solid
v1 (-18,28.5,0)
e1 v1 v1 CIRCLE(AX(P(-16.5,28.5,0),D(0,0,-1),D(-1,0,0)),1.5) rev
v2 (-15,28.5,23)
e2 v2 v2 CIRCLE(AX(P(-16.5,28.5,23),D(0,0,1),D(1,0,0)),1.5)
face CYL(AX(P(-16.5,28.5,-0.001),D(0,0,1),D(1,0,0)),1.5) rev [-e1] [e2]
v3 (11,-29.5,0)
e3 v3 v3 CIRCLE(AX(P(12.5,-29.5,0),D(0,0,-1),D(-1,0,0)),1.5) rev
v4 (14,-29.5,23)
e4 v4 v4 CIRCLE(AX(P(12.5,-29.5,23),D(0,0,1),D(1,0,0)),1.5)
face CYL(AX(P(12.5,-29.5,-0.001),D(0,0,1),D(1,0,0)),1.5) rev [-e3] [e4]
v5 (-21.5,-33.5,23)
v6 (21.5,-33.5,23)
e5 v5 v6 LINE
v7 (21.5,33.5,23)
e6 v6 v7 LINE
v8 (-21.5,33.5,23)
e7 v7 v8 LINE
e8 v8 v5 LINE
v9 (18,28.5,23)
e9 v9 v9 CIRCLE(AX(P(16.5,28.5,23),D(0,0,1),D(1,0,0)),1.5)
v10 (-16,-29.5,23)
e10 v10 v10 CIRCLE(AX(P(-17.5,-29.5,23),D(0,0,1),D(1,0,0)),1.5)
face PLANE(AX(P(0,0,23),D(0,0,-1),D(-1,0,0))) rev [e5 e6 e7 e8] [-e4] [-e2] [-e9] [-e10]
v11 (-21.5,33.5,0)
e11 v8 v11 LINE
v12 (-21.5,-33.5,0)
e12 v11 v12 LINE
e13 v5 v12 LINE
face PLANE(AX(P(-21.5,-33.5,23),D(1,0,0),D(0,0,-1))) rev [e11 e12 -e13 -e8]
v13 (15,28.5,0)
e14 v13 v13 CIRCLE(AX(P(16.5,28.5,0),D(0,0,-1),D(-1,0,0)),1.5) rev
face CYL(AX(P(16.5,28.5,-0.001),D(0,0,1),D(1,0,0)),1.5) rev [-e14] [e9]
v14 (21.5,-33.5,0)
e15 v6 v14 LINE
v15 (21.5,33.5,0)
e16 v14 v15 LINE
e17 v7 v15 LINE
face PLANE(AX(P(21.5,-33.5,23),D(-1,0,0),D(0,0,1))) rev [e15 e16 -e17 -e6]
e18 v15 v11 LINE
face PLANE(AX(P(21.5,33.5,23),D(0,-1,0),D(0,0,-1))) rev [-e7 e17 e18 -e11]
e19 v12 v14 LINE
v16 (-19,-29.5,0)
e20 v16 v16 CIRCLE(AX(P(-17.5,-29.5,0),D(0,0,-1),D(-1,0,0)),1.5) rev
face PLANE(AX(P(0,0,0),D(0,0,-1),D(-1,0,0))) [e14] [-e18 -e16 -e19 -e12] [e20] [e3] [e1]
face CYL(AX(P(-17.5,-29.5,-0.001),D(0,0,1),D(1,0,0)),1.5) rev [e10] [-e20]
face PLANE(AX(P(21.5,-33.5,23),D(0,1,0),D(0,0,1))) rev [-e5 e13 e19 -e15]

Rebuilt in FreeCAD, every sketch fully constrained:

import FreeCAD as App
import Part
import Sketcher
from FreeCAD import Vector
Q = App.Units.Quantity


def add_polygon(sketch, points):
    """Adds a closed chain of lines whose ends are joined by coincident constraints."""
    first, n = sketch.GeometryCount, len(points)
    for a, b in zip(points, points[1:] + points[:1]):
        sketch.addGeometry(Part.LineSegment(App.Vector(*a, 0), App.Vector(*b, 0)), False)
    for i in range(n):
        sketch.addConstraint(Sketcher.Constraint("Coincident", first + i, 2, first + (i + 1) % n, 1))

doc = App.newDocument("Part")
params = doc.addObject("Spreadsheet::Sheet", "Params")
for row, (alias, value) in enumerate([
    ("sketch1_width", "43 mm"),
    ("sketch1_height", "67 mm"),
    ("pad1_length", "23 mm"),
    ("sketch2_diameter", "3 mm"),
    ("sketch3_diameter", "3 mm"),
    ("sketch4_diameter", "3 mm"),
    ("sketch5_diameter", "3 mm"),
], start=1):
    params.set(f"A{row}", alias)
    params.set(f"B{row}", "=" + value)
    params.setAlias(f"B{row}", alias)

body = doc.addObject("PartDesign::Body", "Body")

sketch1 = body.newObject("Sketcher::SketchObject", "Sketch")
sketch1.AttachmentSupport = (doc.getObject("XY_Plane"), [""])
sketch1.MapMode = "FlatFace"
add_polygon(sketch1, [(-22, -34), (22, -34), (22, 34), (-22, 34)])
sketch1.addConstraint([
    Sketcher.Constraint("Horizontal", 0),
    Sketcher.Constraint("Vertical", 1),
    Sketcher.Constraint("Horizontal", 2),
    Sketcher.Constraint("Vertical", 3),
    Sketcher.Constraint("Symmetric", 0, 2, 2, 2, -1, 1),
    Sketcher.Constraint("DistanceX", 0, 1, 0, 2, Q("43 mm")),
    Sketcher.Constraint("DistanceY", 1, 1, 1, 2, Q("67 mm")),
])
sketch1.setExpression("Constraints[9]", "Params.sketch1_width")
sketch1.setExpression("Constraints[10]", "Params.sketch1_height")
pad1 = body.newObject("PartDesign::Pad", "Pad")
pad1.Profile = sketch1
pad1.setExpression("Length", "Params.pad1_length")

sketch2 = body.newObject("Sketcher::SketchObject", "Sketch001")
sketch2.AttachmentSupport = (doc.getObject("XY_Plane"), [""])
sketch2.MapMode = "FlatFace"
sketch2.AttachmentOffset = App.Placement(Vector(0, 0, 23), App.Rotation())
sketch2.addGeometry(Part.Circle(Vector(-16.5, 28.5, 0), Vector(0, 0, 1), 1.5), False)
sketch2.addConstraint([
    Sketcher.Constraint("Diameter", 0, Q("3 mm")),
    Sketcher.Constraint("DistanceX", 0, 3, -1, 1, Q("16.5 mm")),
    Sketcher.Constraint("DistanceY", -1, 1, 0, 3, Q("28.5 mm")),
])
sketch2.setExpression("Constraints[0]", "Params.sketch2_diameter")
pocket1 = body.newObject("PartDesign::Pocket", "Pocket")
pocket1.Profile = sketch2
pocket1.Type = "UpToFirst"

sketch3 = body.newObject("Sketcher::SketchObject", "Sketch002")
sketch3.AttachmentSupport = (doc.getObject("XY_Plane"), [""])
sketch3.MapMode = "FlatFace"
sketch3.AttachmentOffset = App.Placement(Vector(0, 0, 23), App.Rotation())
sketch3.addGeometry(Part.Circle(Vector(16.5, 28.5, 0), Vector(0, 0, 1), 1.5), False)
sketch3.addConstraint([
    Sketcher.Constraint("Diameter", 0, Q("3 mm")),
    Sketcher.Constraint("DistanceX", -1, 1, 0, 3, Q("16.5 mm")),
    Sketcher.Constraint("DistanceY", -1, 1, 0, 3, Q("28.5 mm")),
])
sketch3.setExpression("Constraints[0]", "Params.sketch3_diameter")
pocket2 = body.newObject("PartDesign::Pocket", "Pocket001")
pocket2.Profile = sketch3
pocket2.Type = "UpToFirst"

sketch4 = body.newObject("Sketcher::SketchObject", "Sketch003")
sketch4.AttachmentSupport = (doc.getObject("XY_Plane"), [""])
sketch4.MapMode = "FlatFace"
sketch4.AttachmentOffset = App.Placement(Vector(0, 0, 23), App.Rotation())
sketch4.addGeometry(Part.Circle(Vector(12.5, -29.5, 0), Vector(0, 0, 1), 1.5), False)
sketch4.addConstraint([
    Sketcher.Constraint("Diameter", 0, Q("3 mm")),
    Sketcher.Constraint("DistanceX", -1, 1, 0, 3, Q("12.5 mm")),
    Sketcher.Constraint("DistanceY", 0, 3, -1, 1, Q("29.5 mm")),
])
sketch4.setExpression("Constraints[0]", "Params.sketch4_diameter")
pocket3 = body.newObject("PartDesign::Pocket", "Pocket002")
pocket3.Profile = sketch4
pocket3.Type = "UpToFirst"

sketch5 = body.newObject("Sketcher::SketchObject", "Sketch004")
sketch5.AttachmentSupport = (doc.getObject("XY_Plane"), [""])
sketch5.MapMode = "FlatFace"
sketch5.AttachmentOffset = App.Placement(Vector(0, 0, 23), App.Rotation())
sketch5.addGeometry(Part.Circle(Vector(-17.5, -29.5, 0), Vector(0, 0, 1), 1.5), False)
sketch5.addConstraint([
    Sketcher.Constraint("Diameter", 0, Q("3 mm")),
    Sketcher.Constraint("DistanceX", 0, 3, -1, 1, Q("17.5 mm")),
    Sketcher.Constraint("DistanceY", 0, 3, -1, 1, Q("29.5 mm")),
])
sketch5.setExpression("Constraints[0]", "Params.sketch5_diameter")
pocket4 = body.newObject("PartDesign::Pocket", "Pocket003")
pocket4.Profile = sketch5
pocket4.Type = "UpToFirst"

doc.recompute()
